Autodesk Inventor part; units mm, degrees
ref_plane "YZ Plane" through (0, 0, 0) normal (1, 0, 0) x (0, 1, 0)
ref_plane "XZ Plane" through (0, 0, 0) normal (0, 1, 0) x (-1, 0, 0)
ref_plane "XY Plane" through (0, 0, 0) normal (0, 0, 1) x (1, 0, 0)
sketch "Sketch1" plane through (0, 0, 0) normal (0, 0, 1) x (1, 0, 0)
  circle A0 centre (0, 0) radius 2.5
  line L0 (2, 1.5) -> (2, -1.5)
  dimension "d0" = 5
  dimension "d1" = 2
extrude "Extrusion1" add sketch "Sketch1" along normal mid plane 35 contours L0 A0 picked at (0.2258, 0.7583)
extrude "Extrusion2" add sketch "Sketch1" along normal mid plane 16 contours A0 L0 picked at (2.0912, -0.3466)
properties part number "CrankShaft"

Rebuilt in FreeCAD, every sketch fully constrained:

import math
import FreeCAD as App
import Part
import Sketcher
from FreeCAD import Vector
Q = App.Units.Quantity

doc = App.newDocument("Part")
body = doc.addObject("PartDesign::Body", "Body")

sketch1 = doc.addObject("Sketcher::SketchObject", "Sketch")
body.addObject(sketch1)
sketch1.AttachmentSupport = (doc.XY_Plane, [""])
sketch1.MapMode = "FlatFace"
sketch1.addGeometry(Part.LineSegment(Vector(2, -1.5, 0), Vector(2, 1.5, 0)), False)
sketch1.addGeometry(Part.ArcOfCircle(Part.Circle(Vector(0, 0, 0), Vector(0, 0, 1), 2.5), math.radians(37), math.radians(323)), False)
sketch1.addConstraint(Sketcher.Constraint("Coincident", 0, 1, 1, 2))
sketch1.addConstraint(Sketcher.Constraint("Coincident", 1, 1, 0, 2))
sketch1.addConstraint(Sketcher.Constraint("Vertical", 0))
sketch1.addConstraint(Sketcher.Constraint("Coincident", 1, 3, -1, 1))
sketch1.addConstraint(Sketcher.Constraint("Radius", 1, Q("2.5 mm")))
sketch1.addConstraint(Sketcher.Constraint("DistanceX", -1, 1, 0, 1, Q("2 mm")))
pad1 = doc.addObject("PartDesign::Pad", "Pad")
body.addObject(pad1)
pad1.Profile = sketch1
pad1.Length = 35
pad1.Midplane = True

sketch2 = doc.addObject("Sketcher::SketchObject", "Sketch001")
body.addObject(sketch2)
sketch2.AttachmentSupport = (doc.XY_Plane, [""])
sketch2.MapMode = "FlatFace"
sketch2.addGeometry(Part.ArcOfCircle(Part.Circle(Vector(0, 0, 0), Vector(0, 0, 1), 2.5), math.radians(-37), math.radians(37)), False)
sketch2.addGeometry(Part.LineSegment(Vector(2, 1.5, 0), Vector(2, -1.5, 0)), False)
sketch2.addConstraint(Sketcher.Constraint("Coincident", 0, 1, 1, 2))
sketch2.addConstraint(Sketcher.Constraint("Coincident", 1, 1, 0, 2))
sketch2.addConstraint(Sketcher.Constraint("Vertical", 1))
sketch2.addConstraint(Sketcher.Constraint("Coincident", 0, 3, -1, 1))
sketch2.addConstraint(Sketcher.Constraint("Radius", 0, Q("2.5 mm")))
sketch2.addConstraint(Sketcher.Constraint("DistanceX", -1, 1, 0, 1, Q("2 mm")))
pad2 = doc.addObject("PartDesign::Pad", "Pad001")
body.addObject(pad2)
pad2.Profile = sketch2
pad2.Length = 16
pad2.Midplane = True

doc.recompute()
